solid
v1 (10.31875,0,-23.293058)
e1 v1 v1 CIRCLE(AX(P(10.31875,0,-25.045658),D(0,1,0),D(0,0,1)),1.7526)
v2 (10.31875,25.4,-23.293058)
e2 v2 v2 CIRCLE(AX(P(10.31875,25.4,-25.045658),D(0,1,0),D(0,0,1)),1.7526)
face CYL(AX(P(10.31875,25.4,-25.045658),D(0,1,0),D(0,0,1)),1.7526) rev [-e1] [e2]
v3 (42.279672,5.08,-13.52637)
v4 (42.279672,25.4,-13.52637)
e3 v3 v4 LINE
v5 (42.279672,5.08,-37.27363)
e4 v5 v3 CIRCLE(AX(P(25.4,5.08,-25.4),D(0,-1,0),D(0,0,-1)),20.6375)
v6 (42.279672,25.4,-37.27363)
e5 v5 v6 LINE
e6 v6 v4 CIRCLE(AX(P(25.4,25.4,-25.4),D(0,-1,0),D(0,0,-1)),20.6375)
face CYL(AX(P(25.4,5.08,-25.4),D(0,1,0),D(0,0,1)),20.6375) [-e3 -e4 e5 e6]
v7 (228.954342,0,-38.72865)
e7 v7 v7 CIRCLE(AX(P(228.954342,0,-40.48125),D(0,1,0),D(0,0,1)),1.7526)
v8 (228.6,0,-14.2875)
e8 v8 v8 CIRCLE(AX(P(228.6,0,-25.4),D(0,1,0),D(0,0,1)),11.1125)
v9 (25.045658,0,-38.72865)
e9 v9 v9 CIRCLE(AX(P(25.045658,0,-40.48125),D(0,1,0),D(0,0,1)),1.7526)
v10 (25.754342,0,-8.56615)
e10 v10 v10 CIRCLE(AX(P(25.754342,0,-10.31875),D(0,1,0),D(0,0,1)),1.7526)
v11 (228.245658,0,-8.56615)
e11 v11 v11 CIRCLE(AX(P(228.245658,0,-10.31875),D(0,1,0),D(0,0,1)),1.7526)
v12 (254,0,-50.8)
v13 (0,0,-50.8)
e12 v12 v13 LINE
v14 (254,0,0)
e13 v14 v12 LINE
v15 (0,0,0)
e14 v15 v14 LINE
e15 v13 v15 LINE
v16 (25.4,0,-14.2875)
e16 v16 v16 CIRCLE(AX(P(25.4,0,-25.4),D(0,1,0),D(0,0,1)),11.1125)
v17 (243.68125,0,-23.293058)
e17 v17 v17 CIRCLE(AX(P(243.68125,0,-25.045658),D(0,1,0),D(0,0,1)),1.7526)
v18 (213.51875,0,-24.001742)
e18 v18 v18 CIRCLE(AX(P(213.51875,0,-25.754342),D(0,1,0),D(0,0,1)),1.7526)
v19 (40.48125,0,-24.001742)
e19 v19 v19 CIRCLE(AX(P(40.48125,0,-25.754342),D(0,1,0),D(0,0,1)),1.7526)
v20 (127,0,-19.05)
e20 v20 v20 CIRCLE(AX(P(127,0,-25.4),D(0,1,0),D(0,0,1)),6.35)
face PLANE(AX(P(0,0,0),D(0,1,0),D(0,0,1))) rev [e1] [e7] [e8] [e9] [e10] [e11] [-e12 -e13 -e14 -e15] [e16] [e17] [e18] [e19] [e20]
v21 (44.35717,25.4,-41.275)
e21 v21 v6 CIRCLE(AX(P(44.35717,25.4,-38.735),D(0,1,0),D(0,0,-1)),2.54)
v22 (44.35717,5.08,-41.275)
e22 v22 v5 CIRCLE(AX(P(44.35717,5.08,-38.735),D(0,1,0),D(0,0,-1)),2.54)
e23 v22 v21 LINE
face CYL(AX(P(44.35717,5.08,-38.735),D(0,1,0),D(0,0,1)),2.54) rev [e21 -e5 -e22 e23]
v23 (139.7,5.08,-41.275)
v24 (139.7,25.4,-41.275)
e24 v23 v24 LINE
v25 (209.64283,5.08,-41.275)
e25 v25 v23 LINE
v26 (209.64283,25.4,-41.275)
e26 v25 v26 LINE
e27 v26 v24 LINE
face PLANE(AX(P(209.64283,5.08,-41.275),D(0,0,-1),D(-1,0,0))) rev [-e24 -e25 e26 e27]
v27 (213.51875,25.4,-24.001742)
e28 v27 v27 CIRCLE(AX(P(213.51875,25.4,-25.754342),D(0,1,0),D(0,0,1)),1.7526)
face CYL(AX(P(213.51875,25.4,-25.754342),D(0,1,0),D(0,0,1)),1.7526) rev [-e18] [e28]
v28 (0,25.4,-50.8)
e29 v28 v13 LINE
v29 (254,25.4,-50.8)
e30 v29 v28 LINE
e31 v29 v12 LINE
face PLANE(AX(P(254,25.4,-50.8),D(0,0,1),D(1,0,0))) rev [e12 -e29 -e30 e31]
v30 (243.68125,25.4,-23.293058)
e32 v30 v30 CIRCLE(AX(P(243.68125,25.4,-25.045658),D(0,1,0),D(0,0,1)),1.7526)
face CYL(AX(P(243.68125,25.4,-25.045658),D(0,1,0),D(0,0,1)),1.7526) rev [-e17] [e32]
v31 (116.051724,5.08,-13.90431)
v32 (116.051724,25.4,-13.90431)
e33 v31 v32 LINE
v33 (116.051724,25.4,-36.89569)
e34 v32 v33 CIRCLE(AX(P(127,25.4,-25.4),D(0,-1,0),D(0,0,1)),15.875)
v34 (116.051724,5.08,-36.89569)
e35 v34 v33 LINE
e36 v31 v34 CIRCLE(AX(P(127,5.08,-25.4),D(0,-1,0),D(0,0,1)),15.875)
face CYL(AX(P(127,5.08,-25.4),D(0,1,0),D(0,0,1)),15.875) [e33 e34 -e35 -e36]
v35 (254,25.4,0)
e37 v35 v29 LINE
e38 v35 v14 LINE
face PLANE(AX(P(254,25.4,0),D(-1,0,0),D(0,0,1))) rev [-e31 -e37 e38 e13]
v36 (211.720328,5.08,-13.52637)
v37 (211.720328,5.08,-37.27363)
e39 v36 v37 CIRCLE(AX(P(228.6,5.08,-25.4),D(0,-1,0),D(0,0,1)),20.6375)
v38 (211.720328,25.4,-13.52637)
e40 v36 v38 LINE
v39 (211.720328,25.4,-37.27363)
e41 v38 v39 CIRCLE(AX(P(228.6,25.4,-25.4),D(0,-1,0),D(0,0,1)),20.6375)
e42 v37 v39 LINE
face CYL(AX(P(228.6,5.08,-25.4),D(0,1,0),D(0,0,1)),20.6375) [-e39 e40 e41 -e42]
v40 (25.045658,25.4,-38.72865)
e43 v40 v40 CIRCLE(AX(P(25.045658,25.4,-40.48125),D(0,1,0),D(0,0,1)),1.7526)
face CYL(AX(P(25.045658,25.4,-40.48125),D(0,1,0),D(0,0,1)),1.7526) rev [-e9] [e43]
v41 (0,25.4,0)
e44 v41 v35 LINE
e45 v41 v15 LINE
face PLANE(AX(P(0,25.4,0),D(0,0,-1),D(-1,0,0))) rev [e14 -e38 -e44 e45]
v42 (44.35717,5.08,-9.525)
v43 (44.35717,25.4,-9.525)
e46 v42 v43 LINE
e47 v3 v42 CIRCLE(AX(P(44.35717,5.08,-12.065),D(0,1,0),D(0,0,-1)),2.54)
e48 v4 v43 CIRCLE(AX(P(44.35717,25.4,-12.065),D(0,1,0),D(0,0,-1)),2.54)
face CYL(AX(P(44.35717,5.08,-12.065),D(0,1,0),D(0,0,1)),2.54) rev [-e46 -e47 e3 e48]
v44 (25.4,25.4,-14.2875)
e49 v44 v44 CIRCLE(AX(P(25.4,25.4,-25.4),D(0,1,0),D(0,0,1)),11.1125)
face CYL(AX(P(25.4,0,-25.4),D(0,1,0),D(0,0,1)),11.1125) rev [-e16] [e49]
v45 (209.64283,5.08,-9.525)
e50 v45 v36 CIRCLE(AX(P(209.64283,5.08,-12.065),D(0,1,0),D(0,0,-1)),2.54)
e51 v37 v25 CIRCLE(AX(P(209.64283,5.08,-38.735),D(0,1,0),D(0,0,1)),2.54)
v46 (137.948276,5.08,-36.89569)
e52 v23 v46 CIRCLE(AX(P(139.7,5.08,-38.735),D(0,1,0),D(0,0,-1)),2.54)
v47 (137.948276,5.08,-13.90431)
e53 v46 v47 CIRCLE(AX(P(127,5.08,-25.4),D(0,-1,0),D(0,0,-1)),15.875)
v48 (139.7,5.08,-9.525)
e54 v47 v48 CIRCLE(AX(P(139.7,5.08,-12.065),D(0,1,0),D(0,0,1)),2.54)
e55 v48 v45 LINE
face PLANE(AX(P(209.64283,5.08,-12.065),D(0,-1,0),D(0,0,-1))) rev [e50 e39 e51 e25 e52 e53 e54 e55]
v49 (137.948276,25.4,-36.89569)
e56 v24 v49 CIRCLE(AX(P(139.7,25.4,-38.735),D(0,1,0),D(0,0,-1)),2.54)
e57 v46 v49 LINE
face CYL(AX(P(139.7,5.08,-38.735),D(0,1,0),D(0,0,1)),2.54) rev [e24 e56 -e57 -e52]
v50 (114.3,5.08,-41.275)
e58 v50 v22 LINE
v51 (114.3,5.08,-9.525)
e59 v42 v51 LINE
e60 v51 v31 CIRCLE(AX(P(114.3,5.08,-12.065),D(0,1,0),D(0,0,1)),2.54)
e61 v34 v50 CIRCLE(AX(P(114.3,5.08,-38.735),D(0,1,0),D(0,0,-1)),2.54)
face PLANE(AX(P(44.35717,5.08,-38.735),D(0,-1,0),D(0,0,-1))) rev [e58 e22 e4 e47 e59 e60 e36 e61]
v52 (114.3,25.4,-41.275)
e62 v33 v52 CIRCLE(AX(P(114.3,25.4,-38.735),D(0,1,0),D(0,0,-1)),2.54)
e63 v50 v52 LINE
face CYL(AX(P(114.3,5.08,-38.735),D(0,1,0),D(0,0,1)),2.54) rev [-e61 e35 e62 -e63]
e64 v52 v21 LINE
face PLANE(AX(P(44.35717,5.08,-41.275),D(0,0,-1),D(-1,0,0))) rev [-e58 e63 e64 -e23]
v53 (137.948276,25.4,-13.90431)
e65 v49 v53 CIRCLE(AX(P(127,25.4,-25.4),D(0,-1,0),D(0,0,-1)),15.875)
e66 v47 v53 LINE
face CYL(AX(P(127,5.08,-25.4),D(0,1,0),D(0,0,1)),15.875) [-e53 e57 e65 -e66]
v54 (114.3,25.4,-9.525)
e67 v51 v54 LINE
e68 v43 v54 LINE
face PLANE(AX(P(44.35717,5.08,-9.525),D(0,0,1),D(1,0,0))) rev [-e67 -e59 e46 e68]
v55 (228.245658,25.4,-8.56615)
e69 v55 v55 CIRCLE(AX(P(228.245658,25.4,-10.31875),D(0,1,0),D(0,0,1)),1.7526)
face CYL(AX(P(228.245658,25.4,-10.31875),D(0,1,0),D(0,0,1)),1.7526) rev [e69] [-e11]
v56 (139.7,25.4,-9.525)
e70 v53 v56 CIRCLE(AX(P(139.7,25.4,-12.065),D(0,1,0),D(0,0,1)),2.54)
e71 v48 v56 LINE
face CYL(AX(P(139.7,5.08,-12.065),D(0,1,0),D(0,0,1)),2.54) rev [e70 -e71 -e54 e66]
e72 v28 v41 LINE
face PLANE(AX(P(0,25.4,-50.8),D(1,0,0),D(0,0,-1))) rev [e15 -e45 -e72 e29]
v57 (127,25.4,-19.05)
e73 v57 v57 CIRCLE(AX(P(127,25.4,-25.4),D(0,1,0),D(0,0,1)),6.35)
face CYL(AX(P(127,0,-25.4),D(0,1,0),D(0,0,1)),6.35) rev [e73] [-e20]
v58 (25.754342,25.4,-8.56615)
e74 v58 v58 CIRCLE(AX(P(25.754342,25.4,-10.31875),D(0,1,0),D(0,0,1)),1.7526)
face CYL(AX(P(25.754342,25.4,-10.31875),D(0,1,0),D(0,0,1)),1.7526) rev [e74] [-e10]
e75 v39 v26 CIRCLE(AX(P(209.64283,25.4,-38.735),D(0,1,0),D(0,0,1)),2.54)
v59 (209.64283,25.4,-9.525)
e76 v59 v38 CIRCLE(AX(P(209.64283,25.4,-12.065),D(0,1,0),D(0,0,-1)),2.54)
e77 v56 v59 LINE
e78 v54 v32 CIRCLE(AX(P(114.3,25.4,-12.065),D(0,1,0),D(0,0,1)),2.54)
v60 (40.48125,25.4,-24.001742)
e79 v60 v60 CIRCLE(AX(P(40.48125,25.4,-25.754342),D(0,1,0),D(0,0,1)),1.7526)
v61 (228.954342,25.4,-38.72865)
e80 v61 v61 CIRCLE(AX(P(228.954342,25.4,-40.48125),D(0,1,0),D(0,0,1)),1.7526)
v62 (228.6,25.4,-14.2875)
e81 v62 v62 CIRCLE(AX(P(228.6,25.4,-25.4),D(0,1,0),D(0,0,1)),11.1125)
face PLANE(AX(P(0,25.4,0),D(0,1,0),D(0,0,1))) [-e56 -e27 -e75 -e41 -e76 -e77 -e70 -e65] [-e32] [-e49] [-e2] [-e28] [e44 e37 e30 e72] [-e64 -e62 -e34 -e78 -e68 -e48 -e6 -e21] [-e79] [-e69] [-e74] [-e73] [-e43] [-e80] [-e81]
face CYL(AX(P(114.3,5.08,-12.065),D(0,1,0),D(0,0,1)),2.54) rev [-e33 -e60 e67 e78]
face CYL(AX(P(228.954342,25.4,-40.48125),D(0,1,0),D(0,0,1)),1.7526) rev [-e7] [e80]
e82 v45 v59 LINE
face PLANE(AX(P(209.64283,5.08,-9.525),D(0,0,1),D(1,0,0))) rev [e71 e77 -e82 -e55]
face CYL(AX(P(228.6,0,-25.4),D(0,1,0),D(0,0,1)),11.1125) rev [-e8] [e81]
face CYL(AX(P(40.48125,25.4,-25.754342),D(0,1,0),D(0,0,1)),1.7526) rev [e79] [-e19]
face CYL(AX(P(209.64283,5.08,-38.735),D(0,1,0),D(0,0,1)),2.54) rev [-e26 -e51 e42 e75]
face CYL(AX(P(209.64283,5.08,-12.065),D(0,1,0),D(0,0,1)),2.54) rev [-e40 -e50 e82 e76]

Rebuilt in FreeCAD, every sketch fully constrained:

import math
import FreeCAD as App
import Part
import Sketcher

V = App.Vector
Q = App.Units.Quantity


def add_polygon(sketch, points):
    """Adds a closed chain of lines whose ends are joined by coincident constraints."""
    first, n = sketch.GeometryCount, len(points)
    for a, b in zip(points, points[1:] + points[:1]):
        sketch.addGeometry(Part.LineSegment(App.Vector(*a, 0), App.Vector(*b, 0)), False)
    for i in range(n):
        sketch.addConstraint(Sketcher.Constraint("Coincident", first + i, 2, first + (i + 1) % n, 1))

doc = App.newDocument("Part")
params = doc.addObject("Spreadsheet::Sheet", "Params")
for row, (alias, value) in enumerate([
    ("sketch1_width", "10 in"),
    ("sketch1_height", "2 in"),
    ("pad1_length", "1 in"),
    ("sketch2_diameter", "0.5 in"),
    ("sketch2_diameter2", "0.875 in"),
    ("sketch3_diameter", "0.138 in"),
    ("hole_diameter", "0.138 in"),
    ("sketch4_radius", "0.1 in"),
    ("sketch4_radius2", "0.8125 in"),
    ("sketch4_radius3", "0.625 in"),
    ("pocket2_length", "0.8 in"),
], start=1):
    params.set(f"A{row}", alias)
    params.set(f"B{row}", "=" + value)
    params.setAlias(f"B{row}", alias)

body = doc.addObject("PartDesign::Body", "Body")

sketch1 = doc.addObject("Sketcher::SketchObject", "Sketch")
body.addObject(sketch1)
sketch1.AttachmentSupport = (doc.XZ_Plane, [""])
sketch1.MapMode = "FlatFace"
add_polygon(sketch1, [(0, -51), (0, 0), (254, 0), (254, -51)])
sketch1.addConstraint([
    Sketcher.Constraint("Vertical", 0),
    Sketcher.Constraint("Horizontal", 1),
    Sketcher.Constraint("Vertical", 2),
    Sketcher.Constraint("Horizontal", 3),
    Sketcher.Constraint("Coincident", 0, 2, -1, 1),
    Sketcher.Constraint("DistanceX", 1, 1, 1, 2, Q("10 in")),
    Sketcher.Constraint("DistanceY", 0, 1, 0, 2, Q("2 in")),
])
sketch1.setExpression("Constraints[9]", "Params.sketch1_width")
sketch1.setExpression("Constraints[10]", "Params.sketch1_height")
pad1 = doc.addObject("PartDesign::Pad", "Pad")
body.addObject(pad1)
pad1.Profile = sketch1
pad1.setExpression("Length", "Params.pad1_length")
pad1.Reversed = True

sketch2 = doc.addObject("Sketcher::SketchObject", "Sketch001")
body.addObject(sketch2)
sketch2.AttachmentSupport = (doc.XZ_Plane, [""])
sketch2.MapMode = "FlatFace"
sketch2.AttachmentOffset = App.Placement(V(0, 0, -1 * 25.4), App.Rotation())
sketch2.addGeometry([
    Part.Circle(V(25, -25, 0), V(0, 0, 1), 11),
    Part.Circle(V(229, -25, 0), V(0, 0, 1), 11),
    Part.Circle(V(127, -25, 0), V(0, 0, 1), 6),
], False)
sketch2.addConstraint([
    Sketcher.Constraint("Equal", 0, 1),
    Sketcher.Constraint("Horizontal", 0, 3, 1, 3),
    Sketcher.Constraint("Horizontal", 1, 3, 2, 3),
    Sketcher.Constraint("Diameter", 2, Q("0.5 in")),
    Sketcher.Constraint("Diameter", 0, Q("0.875 in")),
    Sketcher.Constraint("DistanceX", -1, 1, 0, 3, Q("1 in")),
    Sketcher.Constraint("DistanceY", 0, 3, -1, 1, Q("1 in")),
    Sketcher.Constraint("DistanceX", -1, 1, 1, 3, Q("9 in")),
    Sketcher.Constraint("DistanceX", -1, 1, 2, 3, Q("5 in")),
])
sketch2.setExpression("Constraints[3]", "Params.sketch2_diameter")
sketch2.setExpression("Constraints[4]", "Params.sketch2_diameter2")
pocket1 = doc.addObject("PartDesign::Pocket", "Pocket")
body.addObject(pocket1)
pocket1.Profile = sketch2
pocket1.Type = "ThroughAll"
pocket1.Reversed = True

sketch3 = doc.addObject("Sketcher::SketchObject", "Sketch002")
body.addObject(sketch3)
sketch3.AttachmentSupport = (doc.XZ_Plane, [""])
sketch3.MapMode = "FlatFace"
sketch3.AttachmentOffset = App.Placement(V(0, 0, -1 * 25.4), App.Rotation())
sketch3.addGeometry([
    Part.Circle(V(10.3, -25, 0), V(0, 0, 1), 1.8),
    Part.Circle(V(243.7, -25, 0), V(0, 0, 1), 1.8),
], False)
sketch3.addConstraint([
    Sketcher.Constraint("Equal", 0, 1),
    Sketcher.Constraint("Horizontal", 0, 3, 1, 3),
    Sketcher.Constraint("Diameter", 0, Q("0.138 in")),
    Sketcher.Constraint("DistanceX", -1, 1, 0, 3, Q("0.40625 in")),
    Sketcher.Constraint("DistanceX", -1, 1, 1, 3, Q("9.59375 in")),
    Sketcher.Constraint("DistanceY", 0, 3, -1, 1, Q("25.045658 mm")),
])
sketch3.setExpression("Constraints[2]", "Params.sketch3_diameter")
doc.recompute()
hole = doc.addObject("PartDesign::Hole", "Hole")
body.addObject(hole)
hole.Profile = sketch3
hole.ThreadType = "None"
hole.setExpression("Diameter", "Params.hole_diameter")
hole.DepthType = "ThroughAll"
hole.Reversed = True

sketch4 = doc.addObject("Sketcher::SketchObject", "Sketch003")
body.addObject(sketch4)
sketch4.AttachmentSupport = (doc.XZ_Plane, [""])
sketch4.MapMode = "FlatFace"
sketch4.AttachmentOffset = App.Placement(V(0, 0, -1 * 25.4), App.Rotation())
sketch4.addGeometry([
    Part.LineSegment(V(114.3, -41.3, 0), V(44.4, -41.3, 0)),
    Part.ArcOfCircle(Part.Circle(V(44.4, -38.7, 0), V(0, 0, 1), 2.5), math.radians(145), math.radians(270)),
    Part.ArcOfCircle(Part.Circle(V(25.4, -25.4, 0), V(0, 0, 1), 20.6), math.radians(-35), math.radians(35)),
    Part.ArcOfCircle(Part.Circle(V(44.4, -12.1, 0), V(0, 0, 1), 2.5), math.radians(90), math.radians(215)),
    Part.LineSegment(V(44.4, -9.5, 0), V(114.3, -9.5, 0)),
    Part.ArcOfCircle(Part.Circle(V(114.3, -12.1, 0), V(0, 0, 1), 2.5), math.radians(-46), math.radians(90)),
    Part.ArcOfCircle(Part.Circle(V(127, -25.4, 0), V(0, 0, 1), 15.9), math.radians(134), math.radians(226)),
    Part.ArcOfCircle(Part.Circle(V(114.3, -38.7, 0), V(0, 0, 1), 2.5), math.radians(-90), math.radians(46)),
    Part.LineSegment(V(209.6, -41.3, 0), V(139.7, -41.3, 0)),
    Part.ArcOfCircle(Part.Circle(V(139.7, -38.7, 0), V(0, 0, 1), 2.5), math.radians(134), math.radians(270)),
    Part.ArcOfCircle(Part.Circle(V(127, -25.4, 0), V(0, 0, 1), 15.9), math.radians(-46), math.radians(46)),
    Part.ArcOfCircle(Part.Circle(V(139.7, -12.1, 0), V(0, 0, 1), 2.5), math.radians(90), math.radians(226)),
    Part.LineSegment(V(139.7, -9.5, 0), V(209.6, -9.5, 0)),
    Part.ArcOfCircle(Part.Circle(V(209.6, -12.1, 0), V(0, 0, 1), 2.5), math.radians(-35), math.radians(90)),
    Part.ArcOfCircle(Part.Circle(V(228.6, -25.4, 0), V(0, 0, 1), 20.6), math.radians(145), math.radians(215)),
    Part.ArcOfCircle(Part.Circle(V(209.6, -38.7, 0), V(0, 0, 1), 2.5), math.radians(-90), math.radians(35)),
], False)
sketch4.addConstraint([
    Sketcher.Constraint("Tangent", 0, 2, 1, 2),
    Sketcher.Constraint("Tangent", 1, 1, 2, 1),
    Sketcher.Constraint("Tangent", 2, 2, 3, 2),
    Sketcher.Constraint("Tangent", 3, 1, 4, 1),
    Sketcher.Constraint("Tangent", 4, 2, 5, 2),
    Sketcher.Constraint("Tangent", 5, 1, 6, 1),
    Sketcher.Constraint("Tangent", 6, 2, 7, 2),
    Sketcher.Constraint("Tangent", 7, 1, 0, 1),
    Sketcher.Constraint("Tangent", 8, 2, 9, 2),
    Sketcher.Constraint("Tangent", 9, 1, 10, 1),
    Sketcher.Constraint("Tangent", 10, 2, 11, 2),
    Sketcher.Constraint("Tangent", 11, 1, 12, 1),
    Sketcher.Constraint("Tangent", 12, 2, 13, 2),
    Sketcher.Constraint("Tangent", 13, 1, 14, 1),
    Sketcher.Constraint("Tangent", 14, 2, 15, 2),
    Sketcher.Constraint("Tangent", 15, 1, 8, 1),
    Sketcher.Constraint("Horizontal", 0),
    Sketcher.Constraint("Horizontal", 4),
    Sketcher.Constraint("Horizontal", 8),
    Sketcher.Constraint("Horizontal", 12),
    Sketcher.Constraint("Coincident", 10, 3, 6, 3),
    Sketcher.Constraint("Equal", 1, 3),
    Sketcher.Constraint("Equal", 3, 5),
    Sketcher.Constraint("Equal", 5, 7),
    Sketcher.Constraint("Equal", 7, 9),
    Sketcher.Constraint("Equal", 6, 10),
    Sketcher.Constraint("Equal", 9, 11),
    Sketcher.Constraint("Equal", 11, 13),
    Sketcher.Constraint("Equal", 2, 14),
    Sketcher.Constraint("Equal", 13, 15),
    Sketcher.Constraint("Horizontal", 2, 3, 6, 3),
    Sketcher.Constraint("Horizontal", 7, 3, 9, 3),
    Sketcher.Constraint("Horizontal", 5, 3, 11, 3),
    Sketcher.Constraint("Horizontal", 10, 3, 14, 3),
    Sketcher.Constraint("Vertical", 1, 3, 3, 3),
    Sketcher.Constraint("Equal", 4, 8),
    Sketcher.Constraint("Radius", 1, Q("0.1 in")),
    Sketcher.Constraint("DistanceX", -1, 1, 2, 3, Q("1 in")),
    Sketcher.Constraint("DistanceY", 2, 3, -1, 1, Q("1 in")),
    Sketcher.Constraint("DistanceX", -1, 1, 6, 3, Q("5 in")),
    Sketcher.Constraint("Radius", 2, Q("0.8125 in")),
    Sketcher.Constraint("Radius", 6, Q("0.625 in")),
    Sketcher.Constraint("DistanceX", 7, 3, 9, 3, Q("1 in")),
])
sketch4.setExpression("Constraints[36]", "Params.sketch4_radius")
sketch4.setExpression("Constraints[40]", "Params.sketch4_radius2")
sketch4.setExpression("Constraints[41]", "Params.sketch4_radius3")
pocket2 = doc.addObject("PartDesign::Pocket", "Pocket001")
body.addObject(pocket2)
pocket2.Profile = sketch4
pocket2.setExpression("Length", "Params.pocket2_length")
pocket2.Reversed = True
doc.recompute()

datumline = doc.addObject("PartDesign::Line", "DatumLine")
body.addObject(datumline)
datumline.Placement = App.Placement(V(25.4, 0, -25.4), App.Rotation(V(0, 0, 1), V(0, 1, 0)))
polarpattern = doc.addObject("PartDesign::PolarPattern", "PolarPattern")
body.addObject(polarpattern)
polarpattern.Originals = [hole]
polarpattern.Axis = (datumline, [""])
polarpattern.Angle = 360
polarpattern.Occurrences = 4
body.Tip = polarpattern
doc.recompute()

datumline2 = doc.addObject("PartDesign::Line", "DatumLine001")
body.addObject(datumline2)
datumline2.Placement = App.Placement(V(228.6, 0, -25.4), App.Rotation(V(0, 0, 1), V(0, 1, 0)))
polarpattern2 = doc.addObject("PartDesign::PolarPattern", "PolarPattern001")
body.addObject(polarpattern2)
polarpattern2.Originals = [hole]
polarpattern2.Axis = (datumline2, [""])
polarpattern2.Angle = 360
polarpattern2.Occurrences = 4
body.Tip = polarpattern2

doc.recompute()
